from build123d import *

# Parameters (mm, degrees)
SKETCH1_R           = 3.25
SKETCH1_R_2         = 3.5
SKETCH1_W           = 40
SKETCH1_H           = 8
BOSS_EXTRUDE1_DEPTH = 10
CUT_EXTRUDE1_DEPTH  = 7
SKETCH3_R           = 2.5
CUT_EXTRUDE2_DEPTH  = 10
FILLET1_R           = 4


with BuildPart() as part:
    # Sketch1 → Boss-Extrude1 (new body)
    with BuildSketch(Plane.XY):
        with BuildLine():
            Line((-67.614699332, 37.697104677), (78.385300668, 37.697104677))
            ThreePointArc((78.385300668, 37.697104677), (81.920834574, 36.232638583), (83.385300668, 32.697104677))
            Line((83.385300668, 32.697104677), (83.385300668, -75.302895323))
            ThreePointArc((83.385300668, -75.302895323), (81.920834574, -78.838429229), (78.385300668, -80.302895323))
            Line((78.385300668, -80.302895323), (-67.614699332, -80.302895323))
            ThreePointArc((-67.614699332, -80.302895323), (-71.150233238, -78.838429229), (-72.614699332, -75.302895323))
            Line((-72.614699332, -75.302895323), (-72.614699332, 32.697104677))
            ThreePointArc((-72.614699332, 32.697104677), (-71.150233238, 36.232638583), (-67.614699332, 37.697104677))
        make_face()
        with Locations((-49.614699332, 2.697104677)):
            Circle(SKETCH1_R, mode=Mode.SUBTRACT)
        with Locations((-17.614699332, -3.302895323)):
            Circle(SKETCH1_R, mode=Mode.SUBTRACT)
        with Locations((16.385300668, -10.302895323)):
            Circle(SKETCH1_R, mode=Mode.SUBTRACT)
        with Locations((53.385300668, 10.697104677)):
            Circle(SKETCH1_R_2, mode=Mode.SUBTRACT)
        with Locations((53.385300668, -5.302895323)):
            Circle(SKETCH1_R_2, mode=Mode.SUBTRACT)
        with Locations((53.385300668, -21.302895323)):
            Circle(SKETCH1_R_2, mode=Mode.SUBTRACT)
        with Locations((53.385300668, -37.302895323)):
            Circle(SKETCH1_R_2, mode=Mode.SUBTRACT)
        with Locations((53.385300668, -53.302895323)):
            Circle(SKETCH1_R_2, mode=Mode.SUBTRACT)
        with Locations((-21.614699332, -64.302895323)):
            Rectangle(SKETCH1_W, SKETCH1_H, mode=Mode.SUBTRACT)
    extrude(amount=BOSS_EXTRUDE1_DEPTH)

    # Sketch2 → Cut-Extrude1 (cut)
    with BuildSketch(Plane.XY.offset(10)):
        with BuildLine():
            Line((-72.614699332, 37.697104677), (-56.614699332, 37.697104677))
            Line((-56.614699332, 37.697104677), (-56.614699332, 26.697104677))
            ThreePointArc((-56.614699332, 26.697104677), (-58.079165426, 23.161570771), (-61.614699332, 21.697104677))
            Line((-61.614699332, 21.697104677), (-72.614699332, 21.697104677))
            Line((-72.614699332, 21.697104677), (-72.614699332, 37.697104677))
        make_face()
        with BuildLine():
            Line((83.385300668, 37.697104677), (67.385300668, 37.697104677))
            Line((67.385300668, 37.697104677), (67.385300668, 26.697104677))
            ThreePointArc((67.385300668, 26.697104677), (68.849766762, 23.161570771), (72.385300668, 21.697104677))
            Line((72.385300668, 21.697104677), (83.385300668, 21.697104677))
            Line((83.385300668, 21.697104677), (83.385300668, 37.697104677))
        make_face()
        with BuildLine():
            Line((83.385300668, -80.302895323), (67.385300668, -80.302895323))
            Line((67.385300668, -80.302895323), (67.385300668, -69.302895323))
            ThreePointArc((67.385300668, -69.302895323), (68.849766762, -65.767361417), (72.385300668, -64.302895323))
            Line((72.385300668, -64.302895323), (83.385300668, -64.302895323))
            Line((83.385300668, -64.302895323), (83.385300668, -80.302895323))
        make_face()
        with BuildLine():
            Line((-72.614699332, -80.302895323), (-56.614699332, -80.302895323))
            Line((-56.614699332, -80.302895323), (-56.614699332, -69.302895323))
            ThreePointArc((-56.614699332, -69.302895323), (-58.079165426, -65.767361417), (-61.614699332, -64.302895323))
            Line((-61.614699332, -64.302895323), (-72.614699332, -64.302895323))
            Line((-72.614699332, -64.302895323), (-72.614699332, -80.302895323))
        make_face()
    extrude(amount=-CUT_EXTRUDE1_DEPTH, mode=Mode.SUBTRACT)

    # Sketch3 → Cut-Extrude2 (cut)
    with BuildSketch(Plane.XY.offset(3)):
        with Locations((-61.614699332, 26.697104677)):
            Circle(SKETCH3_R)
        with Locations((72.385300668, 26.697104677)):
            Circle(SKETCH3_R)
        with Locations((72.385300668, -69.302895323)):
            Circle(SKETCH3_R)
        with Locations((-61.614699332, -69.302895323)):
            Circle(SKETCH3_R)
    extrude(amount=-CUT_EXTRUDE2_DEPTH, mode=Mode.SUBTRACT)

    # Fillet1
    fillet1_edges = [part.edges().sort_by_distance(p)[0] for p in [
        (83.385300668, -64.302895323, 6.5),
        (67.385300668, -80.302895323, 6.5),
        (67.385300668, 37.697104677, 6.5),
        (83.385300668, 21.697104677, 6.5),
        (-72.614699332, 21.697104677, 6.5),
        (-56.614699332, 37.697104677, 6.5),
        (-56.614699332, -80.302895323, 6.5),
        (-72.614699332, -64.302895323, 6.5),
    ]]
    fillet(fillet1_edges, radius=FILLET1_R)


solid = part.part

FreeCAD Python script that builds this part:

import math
import FreeCAD as App
import Part
import Sketcher
from FreeCAD import Vector


def edges_at(feature, points):
    """Names of the edges that pass closest to the given points."""
    edges = feature.Shape.Edges
    near = lambda p: min(range(len(edges)), key=lambda i: edges[i].distToShape(Part.Vertex(*p))[0])
    return sorted({f"Edge{near(p) + 1}" for p in points})

doc = App.newDocument("Part")
body = doc.addObject("PartDesign::Body", "Body")

# Sketch on XY plane
sketch1 = body.newObject("Sketcher::SketchObject", "Sketch")
sketch1.AttachmentSupport = (doc.getObject("XY_Plane"), [""])
sketch1.MapMode = "FlatFace"
sketch1.addGeometry([
    Part.LineSegment(Vector(78.4, 37.7, 0), Vector(-67.6, 37.7, 0)),  # 0
    Part.ArcOfCircle(Part.Circle(Vector(-67.6, 32.7, 0), Vector(0, 0, 1), 5), math.radians(90), math.radians(180)),  # 1
    Part.LineSegment(Vector(-72.6, 32.7, 0), Vector(-72.6, -75.3, 0)),  # 2
    Part.ArcOfCircle(Part.Circle(Vector(-67.6, -75.3, 0), Vector(0, 0, 1), 5), math.radians(180), math.radians(270)),  # 3
    Part.LineSegment(Vector(-67.6, -80.3, 0), Vector(78.4, -80.3, 0)),  # 4
    Part.ArcOfCircle(Part.Circle(Vector(78.4, -75.3, 0), Vector(0, 0, 1), 5), math.radians(-90), math.radians(0)),  # 5
    Part.LineSegment(Vector(83.4, -75.3, 0), Vector(83.4, 32.7, 0)),  # 6
    Part.ArcOfCircle(Part.Circle(Vector(78.4, 32.7, 0), Vector(0, 0, 1), 5), math.radians(0), math.radians(90)),  # 7
    Part.Circle(Vector(53.4, -53.3, 0), Vector(0, 0, 1), 3.5),  # 8
    Part.Circle(Vector(53.4, -37.3, 0), Vector(0, 0, 1), 3.5),  # 9
    Part.LineSegment(Vector(-41.6, -68.3, 0), Vector(-41.6, -60.3, 0)),  # 10
    Part.LineSegment(Vector(-41.6, -60.3, 0), Vector(-1.6, -60.3, 0)),  # 11
    Part.LineSegment(Vector(-1.6, -60.3, 0), Vector(-1.6, -68.3, 0)),  # 12
    Part.LineSegment(Vector(-1.6, -68.3, 0), Vector(-41.6, -68.3, 0)),  # 13
    Part.Circle(Vector(53.4, -21.3, 0), Vector(0, 0, 1), 3.5),  # 14
    Part.Circle(Vector(16.4, -10.3, 0), Vector(0, 0, 1), 3.2),  # 15
    Part.Circle(Vector(53.4, -5.3, 0), Vector(0, 0, 1), 3.5),  # 16
    Part.Circle(Vector(53.4, 10.7, 0), Vector(0, 0, 1), 3.5),  # 17
    Part.Circle(Vector(-17.6, -3.3, 0), Vector(0, 0, 1), 3.2),  # 18
    Part.Circle(Vector(-49.6, 2.7, 0), Vector(0, 0, 1), 3.2),  # 19
], False)
sketch1.addConstraint([
    Sketcher.Constraint("Tangent", 0, 2, 1, 1),
    Sketcher.Constraint("Tangent", 1, 2, 2, 1),
    Sketcher.Constraint("Tangent", 2, 2, 3, 1),
    Sketcher.Constraint("Tangent", 3, 2, 4, 1),
    Sketcher.Constraint("Tangent", 4, 2, 5, 1),
    Sketcher.Constraint("Tangent", 5, 2, 6, 1),
    Sketcher.Constraint("Tangent", 6, 2, 7, 1),
    Sketcher.Constraint("Tangent", 7, 2, 0, 1),
    Sketcher.Constraint("Coincident", 10, 2, 11, 1),
    Sketcher.Constraint("Coincident", 11, 2, 12, 1),
    Sketcher.Constraint("Coincident", 12, 2, 13, 1),
    Sketcher.Constraint("Coincident", 13, 2, 10, 1),
    Sketcher.Constraint("Horizontal", 0),
    Sketcher.Constraint("Vertical", 2),
    Sketcher.Constraint("Horizontal", 4),
    Sketcher.Constraint("Vertical", 6),
    Sketcher.Constraint("Vertical", 10),
    Sketcher.Constraint("Horizontal", 11),
    Sketcher.Constraint("Vertical", 12),
    Sketcher.Constraint("Horizontal", 13),
    Sketcher.Constraint("Equal", 1, 3),
    Sketcher.Constraint("Equal", 3, 5),
    Sketcher.Constraint("Equal", 5, 7),
    Sketcher.Constraint("Equal", 8, 9),
    Sketcher.Constraint("Equal", 9, 14),
    Sketcher.Constraint("Equal", 14, 16),
    Sketcher.Constraint("Equal", 16, 17),
    Sketcher.Constraint("Equal", 15, 18),
    Sketcher.Constraint("Equal", 18, 19),
    Sketcher.Constraint("Vertical", 8, 3, 9, 3),
    Sketcher.Constraint("Vertical", 9, 3, 14, 3),
    Sketcher.Constraint("Vertical", 14, 3, 16, 3),
    Sketcher.Constraint("Vertical", 16, 3, 17, 3),
    Sketcher.Constraint("Diameter", 8, 7.0),
    Sketcher.Constraint("Radius", 1, 5.0),
    Sketcher.Constraint("Diameter", 15, 6.5),
    Sketcher.Constraint("DistanceX", 0, 2, 0, 1, 146.0),
    Sketcher.Constraint("DistanceX", 11, 1, 11, 2, 40.0),
    Sketcher.Constraint("DistanceY", 2, 2, 2, 1, 108.0),
    Sketcher.Constraint("DistanceY", 10, 1, 10, 2, 8.0),
    Sketcher.Constraint("DistanceX", 8, 3, 5, 3, 25.0),
    Sketcher.Constraint("DistanceY", 5, 3, 8, 3, 22.0),
    Sketcher.Constraint("DistanceY", 8, 3, 9, 3, 16.0),
    Sketcher.Constraint("DistanceY", 9, 3, 14, 3, 16.0),
    Sketcher.Constraint("DistanceX", 15, 3, 14, 3, 37.0),
    Sketcher.Constraint("DistanceY", 14, 3, 15, 3, 11.0),
    Sketcher.Constraint("DistanceY", 14, 3, 16, 3, 16.0),
    Sketcher.Constraint("DistanceY", 16, 3, 17, 3, 16.0),
    Sketcher.Constraint("DistanceX", 18, 3, 15, 3, 34.0),
    Sketcher.Constraint("DistanceY", 15, 3, 18, 3, 7.0),
    Sketcher.Constraint("DistanceX", 19, 3, 18, 3, 32.0),
    Sketcher.Constraint("DistanceY", 18, 3, 19, 3, 6.0),
    Sketcher.Constraint("DistanceX", 3, 3, 10, 2, 26.0),
    Sketcher.Constraint("DistanceY", 3, 3, 10, 2, 15.0),
    Sketcher.Constraint("DistanceX", 1, 3, -1, 1, 67.614699),
    Sketcher.Constraint("DistanceY", -1, 1, 1, 3, 32.697105),
])
pad1 = body.newObject("PartDesign::Pad", "Pad")
pad1.Profile = sketch1
pad1.Length = 10

# Sketch on XY plane
sketch2 = body.newObject("Sketcher::SketchObject", "Sketch001")
sketch2.AttachmentSupport = (doc.getObject("XY_Plane"), [""])
sketch2.MapMode = "FlatFace"
sketch2.AttachmentOffset = App.Placement(Vector(0, 0, 10), App.Rotation())
sketch2.addGeometry([
    Part.LineSegment(Vector(-57, 38, 0), Vector(-73, 38, 0)),  # 0
    Part.LineSegment(Vector(-73, 38, 0), Vector(-73, 22, 0)),  # 1
    Part.LineSegment(Vector(-73, 22, 0), Vector(-62, 22, 0)),  # 2
    Part.ArcOfCircle(Part.Circle(Vector(-62, 27, 0), Vector(0, 0, 1), 5), math.radians(-90), math.radians(0)),  # 3
    Part.LineSegment(Vector(-57, 27, 0), Vector(-57, 38, 0)),  # 4
    Part.LineSegment(Vector(83, 38, 0), Vector(67, 38, 0)),  # 5
    Part.LineSegment(Vector(67, 38, 0), Vector(67, 27, 0)),  # 6
    Part.ArcOfCircle(Part.Circle(Vector(72, 27, 0), Vector(0, 0, 1), 5), math.radians(180), math.radians(270)),  # 7
    Part.LineSegment(Vector(72, 22, 0), Vector(83, 22, 0)),  # 8
    Part.LineSegment(Vector(83, 22, 0), Vector(83, 38, 0)),  # 9
    Part.LineSegment(Vector(67, -80, 0), Vector(83, -80, 0)),  # 10
    Part.LineSegment(Vector(83, -80, 0), Vector(83, -64, 0)),  # 11
    Part.LineSegment(Vector(83, -64, 0), Vector(72, -64, 0)),  # 12
    Part.ArcOfCircle(Part.Circle(Vector(72, -69, 0), Vector(0, 0, 1), 5), math.radians(90), math.radians(180)),  # 13
    Part.LineSegment(Vector(67, -69, 0), Vector(67, -80, 0)),  # 14
    Part.LineSegment(Vector(-73, -80, 0), Vector(-57, -80, 0)),  # 15
    Part.LineSegment(Vector(-57, -80, 0), Vector(-57, -69, 0)),  # 16
    Part.ArcOfCircle(Part.Circle(Vector(-62, -69, 0), Vector(0, 0, 1), 5), math.radians(0), math.radians(90)),  # 17
    Part.LineSegment(Vector(-62, -64, 0), Vector(-73, -64, 0)),  # 18
    Part.LineSegment(Vector(-73, -64, 0), Vector(-73, -80, 0)),  # 19
], False)
sketch2.addConstraint([
    Sketcher.Constraint("Coincident", 0, 2, 1, 1),
    Sketcher.Constraint("Coincident", 1, 2, 2, 1),
    Sketcher.Constraint("Tangent", 2, 2, 3, 1),
    Sketcher.Constraint("Tangent", 3, 2, 4, 1),
    Sketcher.Constraint("Coincident", 4, 2, 0, 1),
    Sketcher.Constraint("Coincident", 5, 2, 6, 1),
    Sketcher.Constraint("Tangent", 6, 2, 7, 1),
    Sketcher.Constraint("Tangent", 7, 2, 8, 1),
    Sketcher.Constraint("Coincident", 8, 2, 9, 1),
    Sketcher.Constraint("Coincident", 9, 2, 5, 1),
    Sketcher.Constraint("Coincident", 10, 2, 11, 1),
    Sketcher.Constraint("Coincident", 11, 2, 12, 1),
    Sketcher.Constraint("Tangent", 12, 2, 13, 1),
    Sketcher.Constraint("Tangent", 13, 2, 14, 1),
    Sketcher.Constraint("Coincident", 14, 2, 10, 1),
    Sketcher.Constraint("Coincident", 15, 2, 16, 1),
    Sketcher.Constraint("Tangent", 16, 2, 17, 1),
    Sketcher.Constraint("Tangent", 17, 2, 18, 1),
    Sketcher.Constraint("Coincident", 18, 2, 19, 1),
    Sketcher.Constraint("Coincident", 19, 2, 15, 1),
    Sketcher.Constraint("Horizontal", 0),
    Sketcher.Constraint("Vertical", 1),
    Sketcher.Constraint("Horizontal", 2),
    Sketcher.Constraint("Vertical", 4),
    Sketcher.Constraint("Horizontal", 5),
    Sketcher.Constraint("Vertical", 6),
    Sketcher.Constraint("Horizontal", 8),
    Sketcher.Constraint("Vertical", 9),
    Sketcher.Constraint("Horizontal", 10),
    Sketcher.Constraint("Vertical", 11),
    Sketcher.Constraint("Horizontal", 12),
    Sketcher.Constraint("Vertical", 14),
    Sketcher.Constraint("Horizontal", 15),
    Sketcher.Constraint("Vertical", 16),
    Sketcher.Constraint("Horizontal", 18),
    Sketcher.Constraint("Vertical", 19),
    Sketcher.Constraint("Equal", 3, 7),
    Sketcher.Constraint("Equal", 7, 13),
    Sketcher.Constraint("Equal", 13, 17),
    Sketcher.Constraint("Horizontal", 3, 3, 7, 3),
    Sketcher.Constraint("Horizontal", 13, 3, 17, 3),
    Sketcher.Constraint("Horizontal", 4, 2, 5, 2),
    Sketcher.Constraint("Horizontal", 14, 2, 15, 2),
    Sketcher.Constraint("Vertical", 7, 3, 13, 3),
    Sketcher.Constraint("Vertical", 3, 3, 17, 3),
    Sketcher.Constraint("Vertical", 9, 2, 10, 2),
    Sketcher.Constraint("Vertical", 1, 2, 18, 2),
    Sketcher.Constraint("Equal", 0, 5),
    Sketcher.Constraint("Equal", 15, 1),
    Sketcher.Constraint("Equal", 9, 11),
    Sketcher.Constraint("Radius", 3, 5.0),
    Sketcher.Constraint("DistanceX", 0, 2, 0, 1, 16.0),
    Sketcher.Constraint("DistanceX", 3, 3, 7, 3, 134.0),
    Sketcher.Constraint("DistanceY", 13, 3, 7, 3, 96.0),
    Sketcher.Constraint("DistanceX", 3, 3, -1, 1, 61.614699),
    Sketcher.Constraint("DistanceY", -1, 1, 3, 3, 26.697105),
])
pocket1 = body.newObject("PartDesign::Pocket", "Pocket")
pocket1.Profile = sketch2
pocket1.Length = 7

# Sketch on XY plane
sketch3 = body.newObject("Sketcher::SketchObject", "Sketch002")
sketch3.AttachmentSupport = (doc.getObject("XY_Plane"), [""])
sketch3.MapMode = "FlatFace"
sketch3.AttachmentOffset = App.Placement(Vector(0, 0, 3), App.Rotation())
sketch3.addGeometry([
    Part.Circle(Vector(-61.6, 26.7, 0), Vector(0, 0, 1), 2.5),
    Part.Circle(Vector(72.4, 26.7, 0), Vector(0, 0, 1), 2.5),
    Part.Circle(Vector(72.4, -69.3, 0), Vector(0, 0, 1), 2.5),
    Part.Circle(Vector(-61.6, -69.3, 0), Vector(0, 0, 1), 2.5),
], False)
sketch3.addConstraint([
    Sketcher.Constraint("Equal", 0, 1),
    Sketcher.Constraint("Equal", 1, 2),
    Sketcher.Constraint("Equal", 2, 3),
    Sketcher.Constraint("Horizontal", 0, 3, 1, 3),
    Sketcher.Constraint("Horizontal", 2, 3, 3, 3),
    Sketcher.Constraint("Vertical", 1, 3, 2, 3),
    Sketcher.Constraint("Vertical", 0, 3, 3, 3),
    Sketcher.Constraint("Diameter", 0, 5.0),
    Sketcher.Constraint("DistanceX", 0, 3, 1, 3, 134.0),
    Sketcher.Constraint("DistanceY", 2, 3, 1, 3, 96.0),
    Sketcher.Constraint("DistanceX", 0, 3, -1, 1, 61.614699),
    Sketcher.Constraint("DistanceY", -1, 1, 0, 3, 26.697105),
])
pocket2 = body.newObject("PartDesign::Pocket", "Pocket001")
pocket2.Profile = sketch3
pocket2.Length = 10
doc.recompute()

fillet = body.newObject("PartDesign::Fillet", "Fillet")
fillet.Base = (pocket2, edges_at(pocket2, [
    (83.385, -64.303, 6.5),
    (67.385, -80.303, 6.5),
    (67.385, 37.697, 6.5),
    (83.385, 21.697, 6.5),
    (-72.615, 21.697, 6.5),
    (-56.615, 37.697, 6.5),
    (-56.615, -80.303, 6.5),
    (-72.615, -64.303, 6.5),
]))
fillet.Radius = 4

doc.recompute()
